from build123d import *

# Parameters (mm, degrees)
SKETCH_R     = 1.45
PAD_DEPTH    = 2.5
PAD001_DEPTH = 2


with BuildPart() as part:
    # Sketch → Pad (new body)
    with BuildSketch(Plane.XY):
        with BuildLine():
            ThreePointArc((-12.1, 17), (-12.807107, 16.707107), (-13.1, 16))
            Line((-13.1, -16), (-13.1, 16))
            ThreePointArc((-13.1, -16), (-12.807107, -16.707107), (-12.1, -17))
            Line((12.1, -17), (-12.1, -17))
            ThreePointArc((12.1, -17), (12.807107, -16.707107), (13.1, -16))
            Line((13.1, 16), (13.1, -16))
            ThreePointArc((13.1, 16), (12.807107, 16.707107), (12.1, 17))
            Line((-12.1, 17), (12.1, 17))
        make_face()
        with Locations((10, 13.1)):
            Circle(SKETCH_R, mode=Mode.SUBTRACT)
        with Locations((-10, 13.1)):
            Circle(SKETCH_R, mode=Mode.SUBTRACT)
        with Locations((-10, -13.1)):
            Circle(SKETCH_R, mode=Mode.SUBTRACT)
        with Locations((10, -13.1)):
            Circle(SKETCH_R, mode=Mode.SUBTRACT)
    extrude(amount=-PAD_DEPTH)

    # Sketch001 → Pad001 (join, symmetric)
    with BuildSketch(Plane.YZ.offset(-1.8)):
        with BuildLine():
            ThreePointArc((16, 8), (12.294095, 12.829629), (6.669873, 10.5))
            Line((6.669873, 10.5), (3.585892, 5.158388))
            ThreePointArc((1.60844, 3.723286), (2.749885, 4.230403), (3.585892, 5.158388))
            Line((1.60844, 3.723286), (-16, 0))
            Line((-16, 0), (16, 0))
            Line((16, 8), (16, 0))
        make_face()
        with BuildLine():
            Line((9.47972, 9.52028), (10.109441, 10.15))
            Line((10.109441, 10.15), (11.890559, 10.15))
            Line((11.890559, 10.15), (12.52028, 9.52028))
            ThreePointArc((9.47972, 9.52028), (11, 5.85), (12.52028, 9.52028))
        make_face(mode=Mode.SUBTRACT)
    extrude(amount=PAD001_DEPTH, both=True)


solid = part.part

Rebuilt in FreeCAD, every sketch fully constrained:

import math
import FreeCAD as App
import Part
import Sketcher
from FreeCAD import Vector
Q = App.Units.Quantity

doc = App.newDocument("Part")
params = doc.addObject("Spreadsheet::Sheet", "Params")
for row, (alias, value) in enumerate([
    ("sketch1_radius", "0.999999 mm"),
    ("sketch1_diameter", "2.9 mm"),
    ("sketch1_height", "32 mm"),
    ("sketch1_width", "24.2 mm"),
    ("pad1_length", "2.5 mm"),
    ("sketch2_radius", "5 mm"),
    ("sketch2_radius2", "3 mm"),
    ("sketch2_width", "32 mm"),
    ("sketch2_height", "8 mm"),
    ("sketch2_radius3", "2.15 mm"),
    ("pad2_length", "4 mm"),
], start=1):
    params.set(f"A{row}", alias)
    params.set(f"B{row}", "=" + value)
    params.setAlias(f"B{row}", alias)

body = doc.addObject("PartDesign::Body", "Body")

sketch1 = body.newObject("Sketcher::SketchObject", "Sketch")
sketch1.AttachmentSupport = (doc.getObject("XY_Plane"), [""])
sketch1.MapMode = "FlatFace"
sketch1.addGeometry([
    Part.ArcOfCircle(Part.Circle(Vector(-12.1, 16, 0), Vector(0, 0, 1), 1), math.radians(90), math.radians(180)),
    Part.LineSegment(Vector(-13.1, 16, 0), Vector(-13.1, -16, 0)),
    Part.ArcOfCircle(Part.Circle(Vector(-12.1, -16, 0), Vector(0, 0, 1), 1), math.radians(180), math.radians(270)),
    Part.LineSegment(Vector(-12.1, -17, 0), Vector(12.1, -17, 0)),
    Part.ArcOfCircle(Part.Circle(Vector(12.1, -16, 0), Vector(0, 0, 1), 1), math.radians(-90), math.radians(0)),
    Part.LineSegment(Vector(13.1, -16, 0), Vector(13.1, 16, 0)),
    Part.ArcOfCircle(Part.Circle(Vector(12.1, 16, 0), Vector(0, 0, 1), 1), math.radians(0), math.radians(90)),
    Part.LineSegment(Vector(12.1, 17, 0), Vector(-12.1, 17, 0)),
    Part.Circle(Vector(-10, -13.1, 0), Vector(0, 0, 1), 1.4),
    Part.Circle(Vector(10, -13.1, 0), Vector(0, 0, 1), 1.4),
    Part.Circle(Vector(-10, 13.1, 0), Vector(0, 0, 1), 1.4),
    Part.Circle(Vector(10, 13.1, 0), Vector(0, 0, 1), 1.4),
], False)
sketch1.addConstraint([
    Sketcher.Constraint("Tangent", 0, 2, 1, 1),
    Sketcher.Constraint("Tangent", 1, 2, 2, 1),
    Sketcher.Constraint("Tangent", 2, 2, 3, 1),
    Sketcher.Constraint("Tangent", 3, 2, 4, 1),
    Sketcher.Constraint("Tangent", 4, 2, 5, 1),
    Sketcher.Constraint("Tangent", 5, 2, 6, 1),
    Sketcher.Constraint("Tangent", 6, 2, 7, 1),
    Sketcher.Constraint("Tangent", 7, 2, 0, 1),
    Sketcher.Constraint("Vertical", 1),
    Sketcher.Constraint("Horizontal", 3),
    Sketcher.Constraint("Vertical", 5),
    Sketcher.Constraint("Horizontal", 7),
    Sketcher.Constraint("Equal", 0, 2),
    Sketcher.Constraint("Equal", 2, 4),
    Sketcher.Constraint("Equal", 4, 6),
    Sketcher.Constraint("Equal", 8, 9),
    Sketcher.Constraint("Equal", 9, 10),
    Sketcher.Constraint("Equal", 10, 11),
    Sketcher.Constraint("Symmetric", 0, 3, 4, 3, -1, 1),
    Sketcher.Constraint("Symmetric", 9, 3, 10, 3, -1, 1),
    Sketcher.Constraint("Symmetric", 8, 3, 11, 3, -1, 1),
    Sketcher.Constraint("Symmetric", 8, 3, 9, 3, -2),
    Sketcher.Constraint("Radius", 0, Q("0.999999 mm")),
    Sketcher.Constraint("Diameter", 8, Q("2.9 mm")),
    Sketcher.Constraint("DistanceY", 1, 2, 1, 1, Q("32 mm")),
    Sketcher.Constraint("DistanceX", 3, 1, 3, 2, Q("24.2 mm")),
    Sketcher.Constraint("DistanceX", 8, 3, -1, 1, Q("10 mm")),
    Sketcher.Constraint("DistanceY", 8, 3, -1, 1, Q("13.1 mm")),
])
sketch1.setExpression("Constraints[22]", "Params.sketch1_radius")
sketch1.setExpression("Constraints[23]", "Params.sketch1_diameter")
sketch1.setExpression("Constraints[24]", "Params.sketch1_height")
sketch1.setExpression("Constraints[25]", "Params.sketch1_width")
pad1 = body.newObject("PartDesign::Pad", "Pad")
pad1.Profile = sketch1
pad1.setExpression("Length", "Params.pad1_length")
pad1.Reversed = True

sketch2 = body.newObject("Sketcher::SketchObject", "Sketch001")
sketch2.AttachmentSupport = (doc.getObject("YZ_Plane"), [""])
sketch2.MapMode = "FlatFace"
sketch2.AttachmentOffset = App.Placement(Vector(0, 0, -1.8), App.Rotation())
sketch2.addGeometry([
    Part.ArcOfCircle(Part.Circle(Vector(11, 8, 0), Vector(0, 0, 1), 5), math.radians(0), math.radians(150)),
    Part.LineSegment(Vector(6.7, 10.5, 0), Vector(3.6, 5.2, 0)),
    Part.ArcOfCircle(Part.Circle(Vector(1, 6.7, 0), Vector(0, 0, 1), 3), math.radians(-78), math.radians(-30)),
    Part.LineSegment(Vector(1.6, 3.7, 0), Vector(-16, 0, 0)),
    Part.LineSegment(Vector(-16, 0, 0), Vector(16, 0, 0)),
    Part.LineSegment(Vector(16, 0, 0), Vector(16, 8, 0)),
    Part.ArcOfCircle(Part.Circle(Vector(11, 8, 0), Vector(0, 0, 1), 2.2), math.radians(135), math.radians(405)),
    Part.LineSegment(Vector(9.5, 9.5, 0), Vector(10.1, 10.2, 0)),
    Part.LineSegment(Vector(10.1, 10.2, 0), Vector(11.9, 10.2, 0)),
    Part.LineSegment(Vector(11.9, 10.2, 0), Vector(12.5, 9.5, 0)),
], False)
sketch2.addConstraint([
    Sketcher.Constraint("Tangent", 0, 2, 1, 1),
    Sketcher.Constraint("Tangent", 1, 2, 2, 2),
    Sketcher.Constraint("Tangent", 2, 1, 3, 1),
    Sketcher.Constraint("Coincident", 3, 2, 4, 1),
    Sketcher.Constraint("Coincident", 4, 2, 5, 1),
    Sketcher.Constraint("Tangent", 5, 2, 0, 1),
    Sketcher.Constraint("Tangent", 6, 1, 7, 1),
    Sketcher.Constraint("Coincident", 7, 2, 8, 1),
    Sketcher.Constraint("Coincident", 8, 2, 9, 1),
    Sketcher.Constraint("Tangent", 9, 2, 6, 2),
    Sketcher.Constraint("Horizontal", 4),
    Sketcher.Constraint("Vertical", 5),
    Sketcher.Constraint("Horizontal", 8),
    Sketcher.Constraint("Coincident", 6, 3, 0, 3),
    Sketcher.Constraint("Symmetric", 3, 2, 4, 2, -1, 1),
    Sketcher.Constraint("Perpendicular", 7, 9),
    Sketcher.Constraint("Horizontal", 6, 1, 9, 2),
    Sketcher.Constraint("Radius", 0, Q("5 mm")),
    Sketcher.Constraint("Radius", 2, Q("3 mm")),
    Sketcher.Constraint("DistanceX", 4, 1, 4, 2, Q("32 mm")),
    Sketcher.Constraint("DistanceY", 5, 1, 5, 2, Q("8 mm")),
    Sketcher.Constraint("Angle", 1, Q("-119.999999 deg")),
    Sketcher.Constraint("Radius", 6, Q("2.15 mm")),
    Sketcher.Constraint("DistanceY", -1, 1, 7, 2, Q("10.15 mm")),
    Sketcher.Constraint("Distance", 3, Q("17.997778 mm")),
])
sketch2.setExpression("Constraints[17]", "Params.sketch2_radius")
sketch2.setExpression("Constraints[18]", "Params.sketch2_radius2")
sketch2.setExpression("Constraints[19]", "Params.sketch2_width")
sketch2.setExpression("Constraints[20]", "Params.sketch2_height")
sketch2.setExpression("Constraints[22]", "Params.sketch2_radius3")
pad2 = body.newObject("PartDesign::Pad", "Pad001")
pad2.Profile = sketch2
pad2.setExpression("Length", "Params.pad2_length")
pad2.Midplane = True

doc.recompute()
